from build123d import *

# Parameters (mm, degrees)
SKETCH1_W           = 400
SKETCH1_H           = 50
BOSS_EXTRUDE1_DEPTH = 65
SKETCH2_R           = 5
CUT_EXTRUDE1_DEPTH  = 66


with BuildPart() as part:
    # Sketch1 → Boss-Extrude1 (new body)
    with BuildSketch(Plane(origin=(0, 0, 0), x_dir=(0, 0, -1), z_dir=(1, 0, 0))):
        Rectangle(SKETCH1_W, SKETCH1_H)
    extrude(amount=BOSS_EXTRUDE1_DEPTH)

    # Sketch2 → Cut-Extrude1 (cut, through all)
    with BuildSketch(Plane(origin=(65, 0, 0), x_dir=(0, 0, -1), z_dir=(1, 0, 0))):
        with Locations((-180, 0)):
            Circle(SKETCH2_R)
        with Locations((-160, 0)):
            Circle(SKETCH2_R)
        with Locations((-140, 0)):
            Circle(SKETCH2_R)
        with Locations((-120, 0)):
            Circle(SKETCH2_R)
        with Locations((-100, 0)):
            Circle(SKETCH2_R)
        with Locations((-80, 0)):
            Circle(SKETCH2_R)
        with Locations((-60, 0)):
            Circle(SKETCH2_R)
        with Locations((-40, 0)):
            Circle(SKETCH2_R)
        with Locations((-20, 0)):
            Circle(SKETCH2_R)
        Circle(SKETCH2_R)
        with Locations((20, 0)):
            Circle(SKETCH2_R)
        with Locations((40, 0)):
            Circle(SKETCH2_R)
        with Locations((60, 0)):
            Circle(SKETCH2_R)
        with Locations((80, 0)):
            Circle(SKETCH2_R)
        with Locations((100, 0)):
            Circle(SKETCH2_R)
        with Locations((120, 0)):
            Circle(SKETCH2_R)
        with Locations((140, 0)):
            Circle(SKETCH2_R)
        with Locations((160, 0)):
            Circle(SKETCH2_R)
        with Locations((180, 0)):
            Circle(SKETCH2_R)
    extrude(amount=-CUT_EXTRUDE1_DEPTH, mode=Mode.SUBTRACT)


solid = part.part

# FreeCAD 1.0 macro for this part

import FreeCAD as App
import Part
import Sketcher


def add_polygon(sketch, points):
    """Adds a closed chain of lines whose ends are joined by coincident constraints."""
    first, n = sketch.GeometryCount, len(points)
    for a, b in zip(points, points[1:] + points[:1]):
        sketch.addGeometry(Part.LineSegment(App.Vector(*a, 0), App.Vector(*b, 0)), False)
    for i in range(n):
        sketch.addConstraint(Sketcher.Constraint("Coincident", first + i, 2, first + (i + 1) % n, 1))

doc = App.newDocument("Part")
params = doc.addObject("Spreadsheet::Sheet", "Params")
for row, (alias, value) in enumerate([
    ("sketch1_width", "50 mm"),
    ("sketch1_height", "400 mm"),
    ("pad1_length", "65 mm"),
    ("sketch2_diameter", "10 mm"),
], start=1):
    params.set(f"A{row}", alias)
    params.set(f"B{row}", "=" + value)
    params.setAlias(f"B{row}", alias)

body = doc.addObject("PartDesign::Body", "Body")

# Sketch on YZ plane
sketch1 = body.newObject("Sketcher::SketchObject", "Sketch")
sketch1.AttachmentSupport = (doc.getObject("YZ_Plane"), [""])
sketch1.MapMode = "FlatFace"
add_polygon(sketch1, [(25, 200), (-25, 200), (-25, -200), (25, -200)])  # lines 0-3
sketch1.addConstraint(Sketcher.Constraint("Horizontal", 0))
sketch1.addConstraint(Sketcher.Constraint("Vertical", 1))
sketch1.addConstraint(Sketcher.Constraint("Horizontal", 2))
sketch1.addConstraint(Sketcher.Constraint("Vertical", 3))
sketch1.addConstraint(Sketcher.Constraint("Symmetric", 0, 2, 2, 2, -1, 1))
sketch1.addConstraint(Sketcher.Constraint("DistanceX", 0, 2, 0, 1, 50.0))
sketch1.addConstraint(Sketcher.Constraint("DistanceY", 1, 2, 1, 1, 400.0))
sketch1.setExpression("Constraints[9]", "Params.sketch1_width")
sketch1.setExpression("Constraints[10]", "Params.sketch1_height")
pad1 = body.newObject("PartDesign::Pad", "Pad")
pad1.Profile = sketch1
pad1.setExpression("Length", "Params.pad1_length")

# Sketch on YZ plane
sketch2 = body.newObject("Sketcher::SketchObject", "Sketch001")
sketch2.AttachmentSupport = (doc.getObject("YZ_Plane"), [""])
sketch2.MapMode = "FlatFace"
sketch2.AttachmentOffset = App.Placement(App.Vector(0, 0, 65), App.Rotation())
sketch2.addGeometry(Part.Circle(App.Vector(0, 180, 0), App.Vector(0, 0, 1), 5), False)
sketch2.addGeometry(Part.Circle(App.Vector(0, 160, 0), App.Vector(0, 0, 1), 5), False)
sketch2.addGeometry(Part.Circle(App.Vector(0, 140, 0), App.Vector(0, 0, 1), 5), False)
sketch2.addGeometry(Part.Circle(App.Vector(0, 120, 0), App.Vector(0, 0, 1), 5), False)
sketch2.addGeometry(Part.Circle(App.Vector(0, 100, 0), App.Vector(0, 0, 1), 5), False)
sketch2.addGeometry(Part.Circle(App.Vector(0, 80, 0), App.Vector(0, 0, 1), 5), False)
sketch2.addGeometry(Part.Circle(App.Vector(0, 60, 0), App.Vector(0, 0, 1), 5), False)
sketch2.addGeometry(Part.Circle(App.Vector(0, 40, 0), App.Vector(0, 0, 1), 5), False)
sketch2.addGeometry(Part.Circle(App.Vector(0, 20, 0), App.Vector(0, 0, 1), 5), False)
sketch2.addGeometry(Part.Circle(App.Vector(0, 0, 0), App.Vector(0, 0, 1), 5), False)
sketch2.addGeometry(Part.Circle(App.Vector(0, -20, 0), App.Vector(0, 0, 1), 5), False)
sketch2.addGeometry(Part.Circle(App.Vector(0, -40, 0), App.Vector(0, 0, 1), 5), False)
sketch2.addGeometry(Part.Circle(App.Vector(0, -60, 0), App.Vector(0, 0, 1), 5), False)
sketch2.addGeometry(Part.Circle(App.Vector(0, -80, 0), App.Vector(0, 0, 1), 5), False)
sketch2.addGeometry(Part.Circle(App.Vector(0, -100, 0), App.Vector(0, 0, 1), 5), False)
sketch2.addGeometry(Part.Circle(App.Vector(0, -120, 0), App.Vector(0, 0, 1), 5), False)
sketch2.addGeometry(Part.Circle(App.Vector(0, -140, 0), App.Vector(0, 0, 1), 5), False)
sketch2.addGeometry(Part.Circle(App.Vector(0, -160, 0), App.Vector(0, 0, 1), 5), False)
sketch2.addGeometry(Part.Circle(App.Vector(0, -180, 0), App.Vector(0, 0, 1), 5), False)
sketch2.addConstraint(Sketcher.Constraint("Coincident", 9, 3, -1, 1))
sketch2.addConstraint(Sketcher.Constraint("Equal", 0, 1))
sketch2.addConstraint(Sketcher.Constraint("Equal", 1, 2))
sketch2.addConstraint(Sketcher.Constraint("Equal", 2, 3))
sketch2.addConstraint(Sketcher.Constraint("Equal", 3, 4))
sketch2.addConstraint(Sketcher.Constraint("Equal", 4, 5))
sketch2.addConstraint(Sketcher.Constraint("Equal", 5, 6))
sketch2.addConstraint(Sketcher.Constraint("Equal", 6, 7))
sketch2.addConstraint(Sketcher.Constraint("Equal", 7, 8))
sketch2.addConstraint(Sketcher.Constraint("Equal", 8, 9))
sketch2.addConstraint(Sketcher.Constraint("Equal", 9, 10))
sketch2.addConstraint(Sketcher.Constraint("Equal", 10, 11))
sketch2.addConstraint(Sketcher.Constraint("Equal", 11, 12))
sketch2.addConstraint(Sketcher.Constraint("Equal", 12, 13))
sketch2.addConstraint(Sketcher.Constraint("Equal", 13, 14))
sketch2.addConstraint(Sketcher.Constraint("Equal", 14, 15))
sketch2.addConstraint(Sketcher.Constraint("Equal", 15, 16))
sketch2.addConstraint(Sketcher.Constraint("Equal", 16, 17))
sketch2.addConstraint(Sketcher.Constraint("Equal", 17, 18))
sketch2.addConstraint(Sketcher.Constraint("Symmetric", 8, 3, 10, 3, -1, 1))
sketch2.addConstraint(Sketcher.Constraint("Symmetric", 7, 3, 11, 3, -1, 1))
sketch2.addConstraint(Sketcher.Constraint("Symmetric", 6, 3, 12, 3, -1, 1))
sketch2.addConstraint(Sketcher.Constraint("Symmetric", 5, 3, 13, 3, -1, 1))
sketch2.addConstraint(Sketcher.Constraint("Symmetric", 4, 3, 14, 3, -1, 1))
sketch2.addConstraint(Sketcher.Constraint("Symmetric", 3, 3, 15, 3, -1, 1))
sketch2.addConstraint(Sketcher.Constraint("Symmetric", 2, 3, 16, 3, -1, 1))
sketch2.addConstraint(Sketcher.Constraint("Symmetric", 1, 3, 17, 3, -1, 1))
sketch2.addConstraint(Sketcher.Constraint("Symmetric", 0, 3, 18, 3, -1, 1))
sketch2.addConstraint(Sketcher.Constraint("PointOnObject", 0, 3, -2))
sketch2.addConstraint(Sketcher.Constraint("PointOnObject", 1, 3, -2))
sketch2.addConstraint(Sketcher.Constraint("PointOnObject", 2, 3, -2))
sketch2.addConstraint(Sketcher.Constraint("PointOnObject", 3, 3, -2))
sketch2.addConstraint(Sketcher.Constraint("PointOnObject", 4, 3, -2))
sketch2.addConstraint(Sketcher.Constraint("PointOnObject", 5, 3, -2))
sketch2.addConstraint(Sketcher.Constraint("PointOnObject", 6, 3, -2))
sketch2.addConstraint(Sketcher.Constraint("PointOnObject", 7, 3, -2))
sketch2.addConstraint(Sketcher.Constraint("PointOnObject", 8, 3, -2))
sketch2.addConstraint(Sketcher.Constraint("Diameter", 0, 10.0))
sketch2.addConstraint(Sketcher.Constraint("DistanceY", -1, 1, 0, 3, 180.0))
sketch2.addConstraint(Sketcher.Constraint("DistanceY", -1, 1, 1, 3, 160.0))
sketch2.addConstraint(Sketcher.Constraint("DistanceY", -1, 1, 2, 3, 140.0))
sketch2.addConstraint(Sketcher.Constraint("DistanceY", -1, 1, 3, 3, 120.0))
sketch2.addConstraint(Sketcher.Constraint("DistanceY", -1, 1, 4, 3, 100.0))
sketch2.addConstraint(Sketcher.Constraint("DistanceY", -1, 1, 5, 3, 80.0))
sketch2.addConstraint(Sketcher.Constraint("DistanceY", -1, 1, 6, 3, 60.0))
sketch2.addConstraint(Sketcher.Constraint("DistanceY", -1, 1, 7, 3, 40.0))
sketch2.addConstraint(Sketcher.Constraint("DistanceY", -1, 1, 8, 3, 20.0))
sketch2.setExpression("Constraints[37]", "Params.sketch2_diameter")
pocket1 = body.newObject("PartDesign::Pocket", "Pocket")
pocket1.Profile = sketch2
pocket1.Type = "ThroughAll"

doc.recompute()
